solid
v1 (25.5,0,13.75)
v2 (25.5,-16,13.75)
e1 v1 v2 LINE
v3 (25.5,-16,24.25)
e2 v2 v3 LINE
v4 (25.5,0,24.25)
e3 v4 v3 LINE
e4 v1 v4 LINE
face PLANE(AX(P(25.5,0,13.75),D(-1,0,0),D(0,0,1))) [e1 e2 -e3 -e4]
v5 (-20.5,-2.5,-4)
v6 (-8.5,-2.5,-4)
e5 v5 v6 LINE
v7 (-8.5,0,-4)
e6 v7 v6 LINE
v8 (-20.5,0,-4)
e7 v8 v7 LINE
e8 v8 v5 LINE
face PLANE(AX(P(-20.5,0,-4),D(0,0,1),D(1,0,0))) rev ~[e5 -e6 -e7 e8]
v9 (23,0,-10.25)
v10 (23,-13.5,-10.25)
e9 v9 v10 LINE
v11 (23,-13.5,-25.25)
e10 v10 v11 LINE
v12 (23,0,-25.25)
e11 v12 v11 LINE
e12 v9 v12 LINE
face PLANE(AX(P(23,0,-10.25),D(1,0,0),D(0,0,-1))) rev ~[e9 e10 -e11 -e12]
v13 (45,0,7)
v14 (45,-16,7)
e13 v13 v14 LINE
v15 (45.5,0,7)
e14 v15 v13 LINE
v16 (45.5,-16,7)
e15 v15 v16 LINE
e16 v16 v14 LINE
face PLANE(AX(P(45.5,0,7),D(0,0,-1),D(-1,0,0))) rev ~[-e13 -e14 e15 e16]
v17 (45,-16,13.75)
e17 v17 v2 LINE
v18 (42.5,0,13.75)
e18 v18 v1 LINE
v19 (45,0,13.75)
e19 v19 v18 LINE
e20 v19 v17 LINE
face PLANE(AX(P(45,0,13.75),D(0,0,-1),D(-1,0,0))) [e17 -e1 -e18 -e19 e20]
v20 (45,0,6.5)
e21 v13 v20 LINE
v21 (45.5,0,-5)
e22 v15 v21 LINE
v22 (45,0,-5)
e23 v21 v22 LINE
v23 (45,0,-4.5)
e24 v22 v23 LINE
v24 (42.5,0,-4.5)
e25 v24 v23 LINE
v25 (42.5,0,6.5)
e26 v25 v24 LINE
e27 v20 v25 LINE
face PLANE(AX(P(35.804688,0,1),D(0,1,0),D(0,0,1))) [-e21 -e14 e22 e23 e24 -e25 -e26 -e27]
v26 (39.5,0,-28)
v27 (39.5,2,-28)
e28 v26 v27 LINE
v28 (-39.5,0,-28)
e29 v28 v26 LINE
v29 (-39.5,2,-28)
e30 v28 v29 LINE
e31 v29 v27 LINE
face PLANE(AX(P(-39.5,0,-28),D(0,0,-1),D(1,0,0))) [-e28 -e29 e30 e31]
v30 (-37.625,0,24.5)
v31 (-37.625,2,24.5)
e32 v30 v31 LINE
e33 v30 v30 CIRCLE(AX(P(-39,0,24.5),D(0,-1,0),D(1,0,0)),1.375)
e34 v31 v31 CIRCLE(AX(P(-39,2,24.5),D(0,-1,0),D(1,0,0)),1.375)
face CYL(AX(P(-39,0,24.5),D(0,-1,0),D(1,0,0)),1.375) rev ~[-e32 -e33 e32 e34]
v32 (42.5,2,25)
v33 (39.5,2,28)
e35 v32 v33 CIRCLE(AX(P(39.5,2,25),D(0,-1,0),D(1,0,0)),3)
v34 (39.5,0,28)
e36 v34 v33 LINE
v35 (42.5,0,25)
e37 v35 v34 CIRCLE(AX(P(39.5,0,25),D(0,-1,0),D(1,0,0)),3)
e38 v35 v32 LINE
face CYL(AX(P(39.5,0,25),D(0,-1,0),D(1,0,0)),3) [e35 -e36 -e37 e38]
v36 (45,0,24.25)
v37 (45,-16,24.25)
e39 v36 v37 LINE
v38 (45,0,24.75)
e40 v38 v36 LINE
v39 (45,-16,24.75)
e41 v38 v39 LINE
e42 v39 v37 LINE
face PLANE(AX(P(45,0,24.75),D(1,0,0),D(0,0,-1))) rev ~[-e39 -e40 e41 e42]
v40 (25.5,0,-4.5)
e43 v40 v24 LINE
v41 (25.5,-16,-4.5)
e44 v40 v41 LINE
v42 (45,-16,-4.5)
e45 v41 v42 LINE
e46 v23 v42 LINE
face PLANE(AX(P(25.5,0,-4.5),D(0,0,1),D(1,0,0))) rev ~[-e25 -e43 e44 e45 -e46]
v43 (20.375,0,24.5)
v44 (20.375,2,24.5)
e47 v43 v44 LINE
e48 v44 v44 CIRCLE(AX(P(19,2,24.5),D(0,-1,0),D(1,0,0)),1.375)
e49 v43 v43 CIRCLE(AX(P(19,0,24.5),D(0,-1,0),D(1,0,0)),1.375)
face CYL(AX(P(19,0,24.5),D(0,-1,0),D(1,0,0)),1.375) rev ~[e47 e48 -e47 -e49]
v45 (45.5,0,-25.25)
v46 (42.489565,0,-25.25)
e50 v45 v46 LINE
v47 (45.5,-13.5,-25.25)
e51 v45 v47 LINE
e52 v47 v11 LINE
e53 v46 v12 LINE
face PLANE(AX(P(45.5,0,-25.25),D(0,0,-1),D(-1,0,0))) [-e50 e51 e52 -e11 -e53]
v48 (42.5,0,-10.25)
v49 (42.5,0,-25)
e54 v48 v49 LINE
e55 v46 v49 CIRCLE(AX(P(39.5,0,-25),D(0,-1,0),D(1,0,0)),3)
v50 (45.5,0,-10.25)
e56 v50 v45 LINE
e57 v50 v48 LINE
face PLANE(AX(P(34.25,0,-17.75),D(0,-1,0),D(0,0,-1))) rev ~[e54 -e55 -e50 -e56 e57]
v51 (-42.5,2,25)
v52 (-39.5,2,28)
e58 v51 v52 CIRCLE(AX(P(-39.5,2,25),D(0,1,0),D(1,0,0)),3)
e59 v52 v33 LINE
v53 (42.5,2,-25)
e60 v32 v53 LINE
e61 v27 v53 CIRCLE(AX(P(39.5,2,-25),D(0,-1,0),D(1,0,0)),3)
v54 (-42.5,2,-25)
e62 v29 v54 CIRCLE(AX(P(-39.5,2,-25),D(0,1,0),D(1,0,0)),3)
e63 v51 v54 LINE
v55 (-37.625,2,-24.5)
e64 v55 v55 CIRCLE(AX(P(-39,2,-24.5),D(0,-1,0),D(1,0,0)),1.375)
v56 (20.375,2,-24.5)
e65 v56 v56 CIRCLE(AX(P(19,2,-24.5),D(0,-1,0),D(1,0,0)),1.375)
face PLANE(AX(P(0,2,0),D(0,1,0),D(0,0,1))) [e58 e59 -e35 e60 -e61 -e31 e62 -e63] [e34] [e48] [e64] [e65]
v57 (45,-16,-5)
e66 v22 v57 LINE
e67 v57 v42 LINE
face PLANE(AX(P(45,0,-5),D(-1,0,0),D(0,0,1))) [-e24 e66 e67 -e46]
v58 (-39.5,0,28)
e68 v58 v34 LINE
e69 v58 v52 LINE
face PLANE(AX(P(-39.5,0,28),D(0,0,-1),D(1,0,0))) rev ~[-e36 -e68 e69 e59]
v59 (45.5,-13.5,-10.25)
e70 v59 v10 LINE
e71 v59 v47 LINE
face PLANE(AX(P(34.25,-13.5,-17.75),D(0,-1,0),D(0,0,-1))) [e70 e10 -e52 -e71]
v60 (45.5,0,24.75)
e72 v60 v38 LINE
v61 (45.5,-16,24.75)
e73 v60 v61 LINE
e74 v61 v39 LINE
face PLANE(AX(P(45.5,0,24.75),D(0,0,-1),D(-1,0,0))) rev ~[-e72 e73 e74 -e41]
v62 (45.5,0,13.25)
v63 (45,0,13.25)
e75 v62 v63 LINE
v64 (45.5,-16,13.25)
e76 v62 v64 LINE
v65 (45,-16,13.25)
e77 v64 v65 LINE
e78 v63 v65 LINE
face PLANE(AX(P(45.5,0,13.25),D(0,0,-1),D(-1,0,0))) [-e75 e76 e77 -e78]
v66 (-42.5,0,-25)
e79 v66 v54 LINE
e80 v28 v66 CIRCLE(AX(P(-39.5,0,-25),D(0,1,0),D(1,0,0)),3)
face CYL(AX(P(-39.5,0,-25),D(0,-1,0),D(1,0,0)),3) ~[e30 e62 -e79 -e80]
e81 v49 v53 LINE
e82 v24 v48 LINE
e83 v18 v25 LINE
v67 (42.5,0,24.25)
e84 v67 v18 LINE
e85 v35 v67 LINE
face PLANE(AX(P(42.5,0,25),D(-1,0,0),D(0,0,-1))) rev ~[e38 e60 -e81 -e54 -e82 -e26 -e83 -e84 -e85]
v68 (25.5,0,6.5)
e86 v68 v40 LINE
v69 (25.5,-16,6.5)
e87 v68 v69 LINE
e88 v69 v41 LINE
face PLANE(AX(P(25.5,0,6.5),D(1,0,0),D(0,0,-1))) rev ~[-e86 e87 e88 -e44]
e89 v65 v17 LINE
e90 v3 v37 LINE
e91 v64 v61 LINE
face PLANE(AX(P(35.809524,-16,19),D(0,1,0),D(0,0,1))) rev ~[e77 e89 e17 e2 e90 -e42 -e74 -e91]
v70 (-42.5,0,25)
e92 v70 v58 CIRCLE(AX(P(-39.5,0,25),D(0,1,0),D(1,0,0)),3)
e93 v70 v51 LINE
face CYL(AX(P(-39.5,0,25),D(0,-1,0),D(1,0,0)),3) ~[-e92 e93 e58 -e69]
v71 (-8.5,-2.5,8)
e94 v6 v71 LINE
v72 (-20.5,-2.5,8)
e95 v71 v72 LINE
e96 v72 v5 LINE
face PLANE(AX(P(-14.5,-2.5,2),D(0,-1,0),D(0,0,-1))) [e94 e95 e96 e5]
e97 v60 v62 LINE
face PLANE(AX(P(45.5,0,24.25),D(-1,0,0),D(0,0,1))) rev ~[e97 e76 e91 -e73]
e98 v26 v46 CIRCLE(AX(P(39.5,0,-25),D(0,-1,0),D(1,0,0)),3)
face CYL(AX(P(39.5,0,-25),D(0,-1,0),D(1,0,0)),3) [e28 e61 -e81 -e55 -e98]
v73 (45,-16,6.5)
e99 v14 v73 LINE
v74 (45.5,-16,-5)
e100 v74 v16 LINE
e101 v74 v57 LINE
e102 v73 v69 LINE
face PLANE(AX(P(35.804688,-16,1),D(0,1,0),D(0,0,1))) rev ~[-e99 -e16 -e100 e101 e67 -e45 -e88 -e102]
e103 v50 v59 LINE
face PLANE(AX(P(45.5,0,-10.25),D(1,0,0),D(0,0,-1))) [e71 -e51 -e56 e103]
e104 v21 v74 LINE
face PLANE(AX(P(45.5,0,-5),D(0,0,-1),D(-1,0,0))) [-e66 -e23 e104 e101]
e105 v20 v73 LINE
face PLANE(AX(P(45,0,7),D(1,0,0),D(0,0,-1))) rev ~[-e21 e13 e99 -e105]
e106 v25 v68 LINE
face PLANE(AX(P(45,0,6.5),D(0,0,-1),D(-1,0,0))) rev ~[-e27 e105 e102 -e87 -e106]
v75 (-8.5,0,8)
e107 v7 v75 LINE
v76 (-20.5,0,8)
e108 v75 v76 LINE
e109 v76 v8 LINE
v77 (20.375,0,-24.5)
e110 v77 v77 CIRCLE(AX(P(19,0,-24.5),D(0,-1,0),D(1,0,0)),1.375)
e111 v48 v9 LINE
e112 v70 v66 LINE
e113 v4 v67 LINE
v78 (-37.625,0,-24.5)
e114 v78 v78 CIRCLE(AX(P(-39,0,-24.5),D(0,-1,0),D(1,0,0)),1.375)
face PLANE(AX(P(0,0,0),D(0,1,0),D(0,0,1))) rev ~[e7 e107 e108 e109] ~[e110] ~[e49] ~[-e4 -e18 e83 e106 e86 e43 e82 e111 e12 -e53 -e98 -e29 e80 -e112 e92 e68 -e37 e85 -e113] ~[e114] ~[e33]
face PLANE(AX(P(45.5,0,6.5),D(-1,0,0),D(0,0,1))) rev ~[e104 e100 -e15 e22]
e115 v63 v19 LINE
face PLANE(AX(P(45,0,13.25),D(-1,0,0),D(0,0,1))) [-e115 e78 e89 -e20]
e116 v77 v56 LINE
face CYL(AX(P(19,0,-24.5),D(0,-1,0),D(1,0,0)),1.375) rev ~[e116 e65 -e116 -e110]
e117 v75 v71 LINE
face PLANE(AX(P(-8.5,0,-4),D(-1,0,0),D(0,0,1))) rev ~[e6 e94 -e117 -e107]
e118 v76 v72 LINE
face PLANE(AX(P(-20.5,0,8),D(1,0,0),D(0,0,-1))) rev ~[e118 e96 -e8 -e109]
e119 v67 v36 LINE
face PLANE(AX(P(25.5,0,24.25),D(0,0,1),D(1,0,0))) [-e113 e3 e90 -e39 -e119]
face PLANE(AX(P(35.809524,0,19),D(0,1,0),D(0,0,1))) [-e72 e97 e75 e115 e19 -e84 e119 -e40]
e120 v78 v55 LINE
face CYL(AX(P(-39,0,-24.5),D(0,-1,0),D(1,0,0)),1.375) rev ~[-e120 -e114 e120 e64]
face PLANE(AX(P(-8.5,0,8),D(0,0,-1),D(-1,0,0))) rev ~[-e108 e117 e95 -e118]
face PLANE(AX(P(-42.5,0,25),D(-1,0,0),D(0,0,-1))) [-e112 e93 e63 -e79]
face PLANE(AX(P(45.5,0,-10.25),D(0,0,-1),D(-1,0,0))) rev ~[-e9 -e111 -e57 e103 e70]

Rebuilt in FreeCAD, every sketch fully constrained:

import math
import FreeCAD as App
import Part
import Sketcher


def add_polygon(sketch, points):
    """Adds a closed chain of lines whose ends are joined by coincident constraints."""
    first, n = sketch.GeometryCount, len(points)
    for a, b in zip(points, points[1:] + points[:1]):
        sketch.addGeometry(Part.LineSegment(App.Vector(*a, 0), App.Vector(*b, 0)), False)
    for i in range(n):
        sketch.addConstraint(Sketcher.Constraint("Coincident", first + i, 2, first + (i + 1) % n, 1))

doc = App.newDocument("Part")
params = doc.addObject("Spreadsheet::Sheet", "Params")
for row, (alias, value) in enumerate([
    ("sketch1_radius", "3 mm"),
    ("sketch1_diameter", "2.75 mm"),
    ("sketch1_width", "79 mm"),
    ("sketch1_height", "50 mm"),
    ("pad1_length", "2 mm"),
    ("sketch2_height", "15 mm"),
    ("sketch2_width", "22.5 mm"),
    ("pad2_length", "13.5 mm"),
    ("sketch3_height", "12 mm"),
    ("sketch3_height2", "11 mm"),
    ("sketch3_width", "19.5 mm"),
    ("sketch3_height3", "11.5 mm"),
    ("pad3_length", "16 mm"),
    ("sketch4_width", "12 mm"),
    ("pad4_length", "2.5 mm"),
], start=1):
    params.set(f"A{row}", alias)
    params.set(f"B{row}", "=" + value)
    params.setAlias(f"B{row}", alias)

body = doc.addObject("PartDesign::Body", "Body")

# Sketch on XZ plane
sketch1 = doc.addObject("Sketcher::SketchObject", "Sketch")
body.addObject(sketch1)
sketch1.AttachmentSupport = (doc.XZ_Plane, [""])
sketch1.MapMode = "FlatFace"
sketch1.addGeometry([
    Part.LineSegment(App.Vector(39.5, 28, 0), App.Vector(-39.5, 28, 0)),  # 0
    Part.ArcOfCircle(Part.Circle(App.Vector(-39.5, 25, 0), App.Vector(0, 0, 1), 3), math.radians(90), math.radians(180)),  # 1
    Part.LineSegment(App.Vector(-42.5, 25, 0), App.Vector(-42.5, -25, 0)),  # 2
    Part.ArcOfCircle(Part.Circle(App.Vector(-39.5, -25, 0), App.Vector(0, 0, 1), 3), math.radians(180), math.radians(270)),  # 3
    Part.LineSegment(App.Vector(-39.5, -28, 0), App.Vector(39.5, -28, 0)),  # 4
    Part.ArcOfCircle(Part.Circle(App.Vector(39.5, -25, 0), App.Vector(0, 0, 1), 3), math.radians(-90), math.radians(0)),  # 5
    Part.LineSegment(App.Vector(42.5, -25, 0), App.Vector(42.5, 25, 0)),  # 6
    Part.ArcOfCircle(Part.Circle(App.Vector(39.5, 25, 0), App.Vector(0, 0, 1), 3), math.radians(0), math.radians(90)),  # 7
    Part.Circle(App.Vector(-39, -24.5, 0), App.Vector(0, 0, 1), 1.4),  # 8
    Part.Circle(App.Vector(19, -24.5, 0), App.Vector(0, 0, 1), 1.4),  # 9
    Part.Circle(App.Vector(-39, 24.5, 0), App.Vector(0, 0, 1), 1.4),  # 10
    Part.Circle(App.Vector(19, 24.5, 0), App.Vector(0, 0, 1), 1.4),  # 11
], False)
sketch1.addConstraint([
    Sketcher.Constraint("Tangent", 0, 2, 1, 1),
    Sketcher.Constraint("Tangent", 1, 2, 2, 1),
    Sketcher.Constraint("Tangent", 2, 2, 3, 1),
    Sketcher.Constraint("Tangent", 3, 2, 4, 1),
    Sketcher.Constraint("Tangent", 4, 2, 5, 1),
    Sketcher.Constraint("Tangent", 5, 2, 6, 1),
    Sketcher.Constraint("Tangent", 6, 2, 7, 1),
    Sketcher.Constraint("Tangent", 7, 2, 0, 1),
    Sketcher.Constraint("Horizontal", 0),
    Sketcher.Constraint("Vertical", 2),
    Sketcher.Constraint("Horizontal", 4),
    Sketcher.Constraint("Vertical", 6),
    Sketcher.Constraint("Equal", 1, 3),
    Sketcher.Constraint("Equal", 3, 5),
    Sketcher.Constraint("Equal", 5, 7),
    Sketcher.Constraint("Equal", 8, 9),
    Sketcher.Constraint("Equal", 9, 10),
    Sketcher.Constraint("Equal", 10, 11),
    Sketcher.Constraint("Symmetric", 1, 3, 5, 3, -1, 1),
    Sketcher.Constraint("Symmetric", 8, 3, 10, 3, -1),
    Sketcher.Constraint("Symmetric", 9, 3, 11, 3, -1),
    Sketcher.Constraint("Horizontal", 8, 3, 9, 3),
    Sketcher.Constraint("Radius", 1, 3.0),
    Sketcher.Constraint("Diameter", 8, 2.75),
    Sketcher.Constraint("DistanceX", 0, 2, 0, 1, 79.0),
    Sketcher.Constraint("DistanceY", 2, 2, 2, 1, 50.0),
    Sketcher.Constraint("DistanceX", 8, 3, -1, 1, 39.0),
    Sketcher.Constraint("DistanceX", -1, 1, 9, 3, 19.0),
    Sketcher.Constraint("DistanceY", 8, 3, 10, 3, 49.0),
])
sketch1.setExpression("Constraints[22]", "Params.sketch1_radius")
sketch1.setExpression("Constraints[23]", "Params.sketch1_diameter")
sketch1.setExpression("Constraints[24]", "Params.sketch1_width")
sketch1.setExpression("Constraints[25]", "Params.sketch1_height")
pad1 = doc.addObject("PartDesign::Pad", "Pad")
body.addObject(pad1)
pad1.Profile = sketch1
pad1.setExpression("Length", "Params.pad1_length")
pad1.Reversed = True

# Sketch on XZ plane
sketch2 = doc.addObject("Sketcher::SketchObject", "Sketch001")
body.addObject(sketch2)
sketch2.AttachmentSupport = (doc.XZ_Plane, [""])
sketch2.MapMode = "FlatFace"
add_polygon(sketch2, [(46, -25), (46, -10), (23, -10), (23, -25)])  # lines 0-3
sketch2.addConstraint([
    Sketcher.Constraint("Vertical", 0),
    Sketcher.Constraint("Horizontal", 1),
    Sketcher.Constraint("Vertical", 2),
    Sketcher.Constraint("Horizontal", 3),
    Sketcher.Constraint("DistanceY", 0, 1, 0, 2, 15.0),
    Sketcher.Constraint("DistanceX", 1, 2, 1, 1, 22.5),
    Sketcher.Constraint("DistanceX", -1, 1, 1, 2, 23.0),
    Sketcher.Constraint("DistanceY", 0, 2, -1, 1, 10.25),
])
sketch2.setExpression("Constraints[8]", "Params.sketch2_height")
sketch2.setExpression("Constraints[9]", "Params.sketch2_width")
pad2 = doc.addObject("PartDesign::Pad", "Pad001")
body.addObject(pad2)
pad2.Profile = sketch2
pad2.setExpression("Length", "Params.pad2_length")

# Sketch on XZ plane
sketch3 = doc.addObject("Sketcher::SketchObject", "Sketch002")
body.addObject(sketch3)
sketch3.AttachmentSupport = (doc.XZ_Plane, [""])
sketch3.MapMode = "FlatFace"
add_polygon(sketch3, [(45.5, 13.2), (45.5, 24.8), (45, 24.8), (45, 24.2), (25.5, 24.2), (25.5, 13.8), (45, 13.8), (45, 13.2)])  # lines 0-7
add_polygon(sketch3, [(45.5, -5), (45.5, 7), (45, 7), (45, 6.5), (25.5, 6.5), (25.5, -4.5), (45, -4.5), (45, -5)])  # lines 8-15
sketch3.addConstraint([
    Sketcher.Constraint("Vertical", 0),
    Sketcher.Constraint("Horizontal", 1),
    Sketcher.Constraint("Vertical", 2),
    Sketcher.Constraint("Horizontal", 3),
    Sketcher.Constraint("Vertical", 4),
    Sketcher.Constraint("Horizontal", 5),
    Sketcher.Constraint("Vertical", 6),
    Sketcher.Constraint("Horizontal", 7),
    Sketcher.Constraint("Vertical", 8),
    Sketcher.Constraint("Horizontal", 9),
    Sketcher.Constraint("Vertical", 10),
    Sketcher.Constraint("Horizontal", 11),
    Sketcher.Constraint("Vertical", 12),
    Sketcher.Constraint("Horizontal", 13),
    Sketcher.Constraint("Vertical", 14),
    Sketcher.Constraint("Horizontal", 15),
    Sketcher.Constraint("Vertical", 2, 2, 5, 2),
    Sketcher.Constraint("Vertical", 7, 2, 8, 2),
    Sketcher.Constraint("Vertical", 6, 2, 9, 2),
    Sketcher.Constraint("Vertical", 4, 2, 11, 2),
    Sketcher.Constraint("Vertical", 10, 2, 13, 2),
    Sketcher.Constraint("Equal", 15, 2),
    Sketcher.Constraint("Equal", 2, 6),
    Sketcher.Constraint("Equal", 6, 10),
    Sketcher.Constraint("Equal", 10, 14),
    Sketcher.Constraint("DistanceY", 8, 1, 8, 2, 12.0),
    Sketcher.Constraint("DistanceY", 12, 2, 12, 1, 11.0),
    Sketcher.Constraint("DistanceX", 3, 2, 3, 1, 19.5),
    Sketcher.Constraint("DistanceY", 0, 1, 0, 2, 11.5),
    Sketcher.Constraint("DistanceX", -1, 1, 1, 2, 45.0),
    Sketcher.Constraint("DistanceY", -1, 1, 8, 2, 7.0),
    Sketcher.Constraint("DistanceY", -1, 1, 0, 2, 24.75),
])
sketch3.setExpression("Constraints[41]", "Params.sketch3_height")
sketch3.setExpression("Constraints[42]", "Params.sketch3_height2")
sketch3.setExpression("Constraints[43]", "Params.sketch3_width")
sketch3.setExpression("Constraints[44]", "Params.sketch3_height3")
pad3 = doc.addObject("PartDesign::Pad", "Pad002")
body.addObject(pad3)
pad3.Profile = sketch3
pad3.setExpression("Length", "Params.pad3_length")

# Sketch on XZ plane
sketch4 = doc.addObject("Sketcher::SketchObject", "Sketch003")
body.addObject(sketch4)
sketch4.AttachmentSupport = (doc.XZ_Plane, [""])
sketch4.MapMode = "FlatFace"
add_polygon(sketch4, [(-8, -4), (-8, 8), (-20, 8), (-20, -4)])  # lines 0-3
sketch4.addConstraint([
    Sketcher.Constraint("Vertical", 0),
    Sketcher.Constraint("Horizontal", 1),
    Sketcher.Constraint("Vertical", 2),
    Sketcher.Constraint("Horizontal", 3),
    Sketcher.Constraint("Equal", 3, 0),
    Sketcher.Constraint("DistanceX", 1, 2, 1, 1, 12.0),
    Sketcher.Constraint("DistanceY", -1, 1, 0, 2, 8.0),
    Sketcher.Constraint("DistanceX", 0, 2, -1, 1, 8.5),
])
sketch4.setExpression("Constraints[9]", "Params.sketch4_width")
pad4 = doc.addObject("PartDesign::Pad", "Pad003")
body.addObject(pad4)
pad4.Profile = sketch4
pad4.setExpression("Length", "Params.pad4_length")

doc.recompute()
